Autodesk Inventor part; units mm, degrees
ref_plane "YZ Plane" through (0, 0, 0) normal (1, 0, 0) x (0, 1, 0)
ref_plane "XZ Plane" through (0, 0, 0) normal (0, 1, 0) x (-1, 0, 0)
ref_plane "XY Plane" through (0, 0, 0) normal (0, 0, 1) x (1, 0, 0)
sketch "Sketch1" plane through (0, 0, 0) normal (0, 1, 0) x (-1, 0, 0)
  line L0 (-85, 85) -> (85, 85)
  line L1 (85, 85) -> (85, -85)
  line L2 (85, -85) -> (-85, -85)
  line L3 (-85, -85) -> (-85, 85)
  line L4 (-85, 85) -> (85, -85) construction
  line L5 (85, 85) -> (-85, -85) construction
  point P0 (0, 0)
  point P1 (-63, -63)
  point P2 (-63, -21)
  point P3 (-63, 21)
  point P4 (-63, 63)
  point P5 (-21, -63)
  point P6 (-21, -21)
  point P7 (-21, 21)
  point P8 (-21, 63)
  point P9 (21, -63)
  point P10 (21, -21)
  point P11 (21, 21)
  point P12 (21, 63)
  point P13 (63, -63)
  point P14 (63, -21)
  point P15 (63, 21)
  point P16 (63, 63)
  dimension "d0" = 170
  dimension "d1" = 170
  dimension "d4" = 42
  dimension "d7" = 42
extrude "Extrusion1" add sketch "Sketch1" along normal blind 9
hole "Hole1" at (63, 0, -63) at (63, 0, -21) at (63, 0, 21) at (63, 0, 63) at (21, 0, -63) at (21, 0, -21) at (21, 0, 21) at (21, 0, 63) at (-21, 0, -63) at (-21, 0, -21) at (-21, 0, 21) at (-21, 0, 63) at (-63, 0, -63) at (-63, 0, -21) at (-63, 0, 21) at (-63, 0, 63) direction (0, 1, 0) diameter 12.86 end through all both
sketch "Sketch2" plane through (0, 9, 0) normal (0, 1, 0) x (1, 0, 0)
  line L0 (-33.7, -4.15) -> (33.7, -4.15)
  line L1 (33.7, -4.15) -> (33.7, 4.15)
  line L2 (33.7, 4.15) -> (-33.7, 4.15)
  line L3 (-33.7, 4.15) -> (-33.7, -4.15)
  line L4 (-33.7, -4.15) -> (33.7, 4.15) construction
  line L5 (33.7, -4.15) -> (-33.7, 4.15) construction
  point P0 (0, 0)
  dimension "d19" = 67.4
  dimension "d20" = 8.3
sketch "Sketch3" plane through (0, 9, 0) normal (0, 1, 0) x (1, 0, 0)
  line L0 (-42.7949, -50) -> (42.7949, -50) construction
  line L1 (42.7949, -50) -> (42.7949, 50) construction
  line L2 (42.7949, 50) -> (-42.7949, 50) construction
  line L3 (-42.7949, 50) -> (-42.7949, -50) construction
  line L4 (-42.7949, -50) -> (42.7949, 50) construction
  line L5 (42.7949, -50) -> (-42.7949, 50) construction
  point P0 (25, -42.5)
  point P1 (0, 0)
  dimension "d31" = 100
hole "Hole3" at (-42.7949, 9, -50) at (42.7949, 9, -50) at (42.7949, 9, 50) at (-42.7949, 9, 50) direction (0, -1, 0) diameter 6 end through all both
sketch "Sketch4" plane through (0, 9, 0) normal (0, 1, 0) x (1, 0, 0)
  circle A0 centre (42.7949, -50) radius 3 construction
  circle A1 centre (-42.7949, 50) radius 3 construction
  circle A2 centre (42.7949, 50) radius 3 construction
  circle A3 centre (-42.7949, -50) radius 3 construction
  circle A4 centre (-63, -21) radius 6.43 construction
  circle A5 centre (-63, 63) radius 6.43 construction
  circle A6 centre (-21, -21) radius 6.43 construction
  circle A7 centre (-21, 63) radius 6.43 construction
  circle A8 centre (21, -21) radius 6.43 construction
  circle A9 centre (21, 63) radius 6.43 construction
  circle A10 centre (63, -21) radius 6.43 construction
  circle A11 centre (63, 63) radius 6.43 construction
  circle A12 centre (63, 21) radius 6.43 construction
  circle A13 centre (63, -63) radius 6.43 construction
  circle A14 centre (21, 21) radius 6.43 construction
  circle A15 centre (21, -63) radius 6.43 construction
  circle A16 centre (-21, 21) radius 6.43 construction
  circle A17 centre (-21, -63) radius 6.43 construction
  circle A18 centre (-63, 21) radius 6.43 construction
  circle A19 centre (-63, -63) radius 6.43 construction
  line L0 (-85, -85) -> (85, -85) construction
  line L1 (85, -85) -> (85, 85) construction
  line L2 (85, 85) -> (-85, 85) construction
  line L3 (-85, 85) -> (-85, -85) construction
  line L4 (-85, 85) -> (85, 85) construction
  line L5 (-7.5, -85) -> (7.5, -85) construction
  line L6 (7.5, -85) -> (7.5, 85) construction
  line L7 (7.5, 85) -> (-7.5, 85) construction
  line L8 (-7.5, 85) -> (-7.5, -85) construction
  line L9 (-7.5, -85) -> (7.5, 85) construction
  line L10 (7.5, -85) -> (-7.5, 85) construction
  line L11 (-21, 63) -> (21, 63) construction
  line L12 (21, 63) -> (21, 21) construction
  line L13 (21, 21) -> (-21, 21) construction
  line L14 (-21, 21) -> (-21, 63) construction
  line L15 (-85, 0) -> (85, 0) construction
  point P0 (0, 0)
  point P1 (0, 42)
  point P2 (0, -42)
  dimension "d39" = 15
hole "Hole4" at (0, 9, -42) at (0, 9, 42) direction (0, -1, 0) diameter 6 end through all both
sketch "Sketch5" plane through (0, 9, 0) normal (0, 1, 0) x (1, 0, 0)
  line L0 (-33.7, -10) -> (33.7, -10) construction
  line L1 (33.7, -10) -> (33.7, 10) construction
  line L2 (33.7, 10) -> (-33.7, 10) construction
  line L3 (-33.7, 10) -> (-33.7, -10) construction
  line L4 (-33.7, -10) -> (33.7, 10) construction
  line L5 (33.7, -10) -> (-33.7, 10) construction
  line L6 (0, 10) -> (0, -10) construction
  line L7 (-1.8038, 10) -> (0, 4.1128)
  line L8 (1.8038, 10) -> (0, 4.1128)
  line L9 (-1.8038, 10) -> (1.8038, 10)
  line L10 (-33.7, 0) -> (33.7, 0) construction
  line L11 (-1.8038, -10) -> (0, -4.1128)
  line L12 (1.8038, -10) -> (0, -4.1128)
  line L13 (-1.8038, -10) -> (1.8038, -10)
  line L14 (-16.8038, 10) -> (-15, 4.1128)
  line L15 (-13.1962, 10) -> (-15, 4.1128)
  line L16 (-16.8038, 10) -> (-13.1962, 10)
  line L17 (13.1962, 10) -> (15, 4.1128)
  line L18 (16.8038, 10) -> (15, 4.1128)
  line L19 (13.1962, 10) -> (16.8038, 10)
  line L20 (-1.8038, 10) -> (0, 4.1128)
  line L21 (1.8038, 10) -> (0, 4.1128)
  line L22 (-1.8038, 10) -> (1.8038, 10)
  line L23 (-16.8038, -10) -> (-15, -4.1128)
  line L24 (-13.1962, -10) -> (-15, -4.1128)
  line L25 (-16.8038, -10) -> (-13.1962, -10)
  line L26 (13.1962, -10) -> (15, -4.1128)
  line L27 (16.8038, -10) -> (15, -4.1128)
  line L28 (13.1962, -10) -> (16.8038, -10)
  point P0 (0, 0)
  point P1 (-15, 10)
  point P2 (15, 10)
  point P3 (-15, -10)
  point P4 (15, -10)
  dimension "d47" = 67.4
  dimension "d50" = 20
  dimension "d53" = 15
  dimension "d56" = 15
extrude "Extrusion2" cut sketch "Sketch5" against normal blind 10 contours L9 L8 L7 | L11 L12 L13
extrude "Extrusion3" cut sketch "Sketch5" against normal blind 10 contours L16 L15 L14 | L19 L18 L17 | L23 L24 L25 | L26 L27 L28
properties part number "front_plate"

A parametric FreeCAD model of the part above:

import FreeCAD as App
import Part
import Sketcher

V = App.Vector

doc = App.newDocument("Part")
body = doc.addObject("PartDesign::Body", "Body")

sketch1 = body.newObject("Sketcher::SketchObject", "Sketch")
sketch1.AttachmentSupport = (doc.getObject("XZ_Plane"), [""])
sketch1.MapMode = "FlatFace"
sketch1.addGeometry([
    Part.LineSegment(V(-85, 85, 0), V(85, 85, 0)),
    Part.LineSegment(V(85, 85, 0), V(85, -85, 0)),
    Part.LineSegment(V(85, -85, 0), V(-85, -85, 0)),
    Part.LineSegment(V(-85, -85, 0), V(-85, 85, 0)),
], False)
sketch1.addConstraint([
    Sketcher.Constraint("Coincident", 0, 2, 1, 1),
    Sketcher.Constraint("Coincident", 1, 2, 2, 1),
    Sketcher.Constraint("Coincident", 2, 2, 3, 1),
    Sketcher.Constraint("Coincident", 3, 2, 0, 1),
    Sketcher.Constraint("Horizontal", 0),
    Sketcher.Constraint("Vertical", 1),
    Sketcher.Constraint("Horizontal", 2),
    Sketcher.Constraint("Vertical", 3),
    Sketcher.Constraint("Symmetric", 0, 2, 2, 2, -1, 1),
    Sketcher.Constraint("Equal", 2, 1),
    Sketcher.Constraint("DistanceX", 0, 1, 0, 2, 170.0),
])
pad1 = body.newObject("PartDesign::Pad", "Pad")
pad1.Profile = sketch1
pad1.Length = 9
pad1.Reversed = True

sketch2 = body.newObject("Sketcher::SketchObject", "Sketch001")
sketch2.AttachmentSupport = (doc.getObject("XZ_Plane"), [""])
sketch2.MapMode = "FlatFace"
sketch2.addGeometry([
    Part.Circle(V(63, -63, 0), V(0, 0, 1), 6),
    Part.Circle(V(63, -21, 0), V(0, 0, 1), 6),
    Part.Circle(V(63, 21, 0), V(0, 0, 1), 6),
    Part.Circle(V(63, 63, 0), V(0, 0, 1), 6),
    Part.Circle(V(21, -63, 0), V(0, 0, 1), 6),
    Part.Circle(V(21, -21, 0), V(0, 0, 1), 6),
    Part.Circle(V(21, 21, 0), V(0, 0, 1), 6),
    Part.Circle(V(21, 63, 0), V(0, 0, 1), 6),
    Part.Circle(V(-21, -63, 0), V(0, 0, 1), 6),
    Part.Circle(V(-21, -21, 0), V(0, 0, 1), 6),
    Part.Circle(V(-21, 21, 0), V(0, 0, 1), 6),
    Part.Circle(V(-21, 63, 0), V(0, 0, 1), 6),
    Part.Circle(V(-63, -63, 0), V(0, 0, 1), 6),
    Part.Circle(V(-63, -21, 0), V(0, 0, 1), 6),
    Part.Circle(V(-63, 21, 0), V(0, 0, 1), 6),
    Part.Circle(V(-63, 63, 0), V(0, 0, 1), 6),
], False)
sketch2.addConstraint([
    Sketcher.Constraint("Equal", 0, 1),
    Sketcher.Constraint("Equal", 1, 2),
    Sketcher.Constraint("Equal", 2, 3),
    Sketcher.Constraint("Equal", 3, 4),
    Sketcher.Constraint("Equal", 4, 5),
    Sketcher.Constraint("Equal", 5, 6),
    Sketcher.Constraint("Equal", 6, 7),
    Sketcher.Constraint("Equal", 7, 8),
    Sketcher.Constraint("Equal", 8, 9),
    Sketcher.Constraint("Equal", 9, 10),
    Sketcher.Constraint("Equal", 10, 11),
    Sketcher.Constraint("Equal", 11, 12),
    Sketcher.Constraint("Equal", 12, 13),
    Sketcher.Constraint("Equal", 13, 14),
    Sketcher.Constraint("Equal", 14, 15),
    Sketcher.Constraint("Symmetric", 7, 3, 8, 3, -1, 1),
    Sketcher.Constraint("Symmetric", 6, 3, 9, 3, -1, 1),
    Sketcher.Constraint("Symmetric", 5, 3, 10, 3, -1, 1),
    Sketcher.Constraint("Symmetric", 4, 3, 11, 3, -1, 1),
    Sketcher.Constraint("Symmetric", 3, 3, 12, 3, -1, 1),
    Sketcher.Constraint("Symmetric", 2, 3, 13, 3, -1, 1),
    Sketcher.Constraint("Symmetric", 1, 3, 14, 3, -1, 1),
    Sketcher.Constraint("Symmetric", 0, 3, 15, 3, -1, 1),
    Sketcher.Constraint("Symmetric", 4, 3, 8, 3, -2),
    Sketcher.Constraint("Symmetric", 5, 3, 9, 3, -2),
    Sketcher.Constraint("Symmetric", 0, 3, 12, 3, -2),
    Sketcher.Constraint("Symmetric", 1, 3, 13, 3, -2),
    Sketcher.Constraint("Horizontal", 0, 3, 4, 3),
    Sketcher.Constraint("Horizontal", 1, 3, 5, 3),
    Sketcher.Constraint("Vertical", 0, 3, 1, 3),
    Sketcher.Constraint("Vertical", 4, 3, 5, 3),
    Sketcher.Constraint("Diameter", 0, 12.86),
    Sketcher.Constraint("DistanceX", -1, 1, 0, 3, 63.0),
    Sketcher.Constraint("DistanceY", 0, 3, -1, 1, 63.0),
    Sketcher.Constraint("DistanceY", 1, 3, -1, 1, 21.0),
    Sketcher.Constraint("DistanceX", -1, 1, 4, 3, 21.0),
])
doc.recompute()
hole = body.newObject("PartDesign::Hole", "Hole")
hole.Profile = sketch2
hole.ThreadType = "None"
hole.Diameter = 12.86
hole.DepthType = "ThroughAll"

sketch3 = body.newObject("Sketcher::SketchObject", "Sketch002")
sketch3.AttachmentSupport = (doc.getObject("XZ_Plane"), [""])
sketch3.MapMode = "FlatFace"
sketch3.AttachmentOffset = App.Placement(V(0, 0, -9), App.Rotation())
sketch3.addGeometry([
    Part.Circle(V(-42.8, -50, 0), V(0, 0, 1), 3),
    Part.Circle(V(42.8, -50, 0), V(0, 0, 1), 3),
    Part.Circle(V(42.8, 50, 0), V(0, 0, 1), 3),
    Part.Circle(V(-42.8, 50, 0), V(0, 0, 1), 3),
], False)
sketch3.addConstraint([
    Sketcher.Constraint("Equal", 0, 1),
    Sketcher.Constraint("Equal", 1, 2),
    Sketcher.Constraint("Equal", 2, 3),
    Sketcher.Constraint("Symmetric", 0, 3, 2, 3, -1, 1),
    Sketcher.Constraint("Symmetric", 1, 3, 3, 3, -1, 1),
    Sketcher.Constraint("Symmetric", 0, 3, 1, 3, -2),
    Sketcher.Constraint("Diameter", 0, 6.0),
    Sketcher.Constraint("DistanceY", 0, 3, -1, 1, 50.0),
    Sketcher.Constraint("DistanceX", 0, 3, -1, 1, 42.795),
])
doc.recompute()
hole2 = body.newObject("PartDesign::Hole", "Hole001")
hole2.Profile = sketch3
hole2.ThreadType = "None"
hole2.Diameter = 6
hole2.DepthType = "ThroughAll"
hole2.Reversed = True

sketch4 = body.newObject("Sketcher::SketchObject", "Sketch003")
sketch4.AttachmentSupport = (doc.getObject("XZ_Plane"), [""])
sketch4.MapMode = "FlatFace"
sketch4.AttachmentOffset = App.Placement(V(0, 0, -9), App.Rotation())
sketch4.addGeometry([
    Part.Circle(V(0, -42, 0), V(0, 0, 1), 3),
    Part.Circle(V(0, 42, 0), V(0, 0, 1), 3),
], False)
sketch4.addConstraint([
    Sketcher.Constraint("Equal", 0, 1),
    Sketcher.Constraint("Symmetric", 0, 3, 1, 3, -1, 1),
    Sketcher.Constraint("PointOnObject", 0, 3, -2),
    Sketcher.Constraint("Diameter", 0, 6.0),
    Sketcher.Constraint("DistanceY", 0, 3, -1, 1, 42.0),
])
doc.recompute()
hole3 = body.newObject("PartDesign::Hole", "Hole002")
hole3.Profile = sketch4
hole3.ThreadType = "None"
hole3.Diameter = 6
hole3.DepthType = "ThroughAll"
hole3.Reversed = True

sketch5 = body.newObject("Sketcher::SketchObject", "Sketch004")
sketch5.AttachmentSupport = (doc.getObject("XZ_Plane"), [""])
sketch5.MapMode = "FlatFace"
sketch5.AttachmentOffset = App.Placement(V(0, 0, -9), App.Rotation())
sketch5.addGeometry([
    Part.LineSegment(V(1.8, -10, 0), V(-1.8, -10, 0)),
    Part.LineSegment(V(-1.8, -10, 0), V(0, -4.1, 0)),
    Part.LineSegment(V(0, -4.1, 0), V(1.8, -10, 0)),
    Part.LineSegment(V(0, 4.1, 0), V(-1.8, 10, 0)),
    Part.LineSegment(V(-1.8, 10, 0), V(1.8, 10, 0)),
    Part.LineSegment(V(1.8, 10, 0), V(0, 4.1, 0)),
], False)
sketch5.addConstraint([
    Sketcher.Constraint("Coincident", 0, 2, 1, 1),
    Sketcher.Constraint("Coincident", 1, 2, 2, 1),
    Sketcher.Constraint("Coincident", 2, 2, 0, 1),
    Sketcher.Constraint("Coincident", 3, 2, 4, 1),
    Sketcher.Constraint("Coincident", 4, 2, 5, 1),
    Sketcher.Constraint("Coincident", 5, 2, 3, 1),
    Sketcher.Constraint("Horizontal", 0),
    Sketcher.Constraint("Horizontal", 4),
    Sketcher.Constraint("Symmetric", 2, 2, 3, 2, -1, 1),
    Sketcher.Constraint("Symmetric", 1, 2, 5, 2, -1, 1),
    Sketcher.Constraint("PointOnObject", 1, 2, -2),
    Sketcher.Constraint("Parallel", 1, 5),
    Sketcher.Constraint("Vertical", 0, 2, 3, 2),
    Sketcher.Constraint("DistanceY", 0, 2, 3, 2, 20.0),
    Sketcher.Constraint("DistanceX", 0, 2, 0, 1, 3.6076),
    Sketcher.Constraint("Distance", 1, 6.1573),
])
pocket1 = body.newObject("PartDesign::Pocket", "Pocket")
pocket1.Profile = sketch5
pocket1.Length = 10
pocket1.Reversed = True

sketch6 = body.newObject("Sketcher::SketchObject", "Sketch005")
sketch6.AttachmentSupport = (doc.getObject("XZ_Plane"), [""])
sketch6.MapMode = "FlatFace"
sketch6.AttachmentOffset = App.Placement(V(0, 0, -9), App.Rotation())
sketch6.addGeometry([
    Part.LineSegment(V(-13.2, -10, 0), V(-16.8, -10, 0)),
    Part.LineSegment(V(-16.8, -10, 0), V(-15, -4.1, 0)),
    Part.LineSegment(V(-15, -4.1, 0), V(-13.2, -10, 0)),
    Part.LineSegment(V(16.8, -10, 0), V(13.2, -10, 0)),
    Part.LineSegment(V(13.2, -10, 0), V(15, -4.1, 0)),
    Part.LineSegment(V(15, -4.1, 0), V(16.8, -10, 0)),
    Part.LineSegment(V(-15, 4.1, 0), V(-16.8, 10, 0)),
    Part.LineSegment(V(-16.8, 10, 0), V(-13.2, 10, 0)),
    Part.LineSegment(V(-13.2, 10, 0), V(-15, 4.1, 0)),
    Part.LineSegment(V(15, 4.1, 0), V(13.2, 10, 0)),
    Part.LineSegment(V(13.2, 10, 0), V(16.8, 10, 0)),
    Part.LineSegment(V(16.8, 10, 0), V(15, 4.1, 0)),
], False)
sketch6.addConstraint([
    Sketcher.Constraint("Coincident", 0, 2, 1, 1),
    Sketcher.Constraint("Coincident", 1, 2, 2, 1),
    Sketcher.Constraint("Coincident", 2, 2, 0, 1),
    Sketcher.Constraint("Coincident", 3, 2, 4, 1),
    Sketcher.Constraint("Coincident", 4, 2, 5, 1),
    Sketcher.Constraint("Coincident", 5, 2, 3, 1),
    Sketcher.Constraint("Coincident", 6, 2, 7, 1),
    Sketcher.Constraint("Coincident", 7, 2, 8, 1),
    Sketcher.Constraint("Coincident", 8, 2, 6, 1),
    Sketcher.Constraint("Coincident", 9, 2, 10, 1),
    Sketcher.Constraint("Coincident", 10, 2, 11, 1),
    Sketcher.Constraint("Coincident", 11, 2, 9, 1),
    Sketcher.Constraint("Horizontal", 0),
    Sketcher.Constraint("Horizontal", 3),
    Sketcher.Constraint("Horizontal", 7),
    Sketcher.Constraint("Horizontal", 10),
    Sketcher.Constraint("Symmetric", 5, 2, 6, 2, -1, 1),
    Sketcher.Constraint("Symmetric", 4, 2, 8, 2, -1, 1),
    Sketcher.Constraint("Symmetric", 2, 2, 9, 2, -1, 1),
    Sketcher.Constraint("Symmetric", 1, 2, 11, 2, -1, 1),
    Sketcher.Constraint("Symmetric", 2, 2, 3, 2, -2),
    Sketcher.Constraint("Symmetric", 1, 2, 4, 2, -2),
    Sketcher.Constraint("Parallel", 1, 4),
    Sketcher.Constraint("Parallel", 2, 5),
    Sketcher.Constraint("Parallel", 4, 8),
    Sketcher.Constraint("Parallel", 8, 11),
    Sketcher.Constraint("DistanceX", 1, 2, -1, 1, 15.0),
    Sketcher.Constraint("DistanceY", 0, 2, 6, 2, 20.0),
    Sketcher.Constraint("DistanceX", 0, 2, 0, 1, 3.6076),
    Sketcher.Constraint("Distance", 1, 6.1573),
])
pocket2 = body.newObject("PartDesign::Pocket", "Pocket001")
pocket2.Profile = sketch6
pocket2.Length = 10
pocket2.Reversed = True

doc.recompute()
